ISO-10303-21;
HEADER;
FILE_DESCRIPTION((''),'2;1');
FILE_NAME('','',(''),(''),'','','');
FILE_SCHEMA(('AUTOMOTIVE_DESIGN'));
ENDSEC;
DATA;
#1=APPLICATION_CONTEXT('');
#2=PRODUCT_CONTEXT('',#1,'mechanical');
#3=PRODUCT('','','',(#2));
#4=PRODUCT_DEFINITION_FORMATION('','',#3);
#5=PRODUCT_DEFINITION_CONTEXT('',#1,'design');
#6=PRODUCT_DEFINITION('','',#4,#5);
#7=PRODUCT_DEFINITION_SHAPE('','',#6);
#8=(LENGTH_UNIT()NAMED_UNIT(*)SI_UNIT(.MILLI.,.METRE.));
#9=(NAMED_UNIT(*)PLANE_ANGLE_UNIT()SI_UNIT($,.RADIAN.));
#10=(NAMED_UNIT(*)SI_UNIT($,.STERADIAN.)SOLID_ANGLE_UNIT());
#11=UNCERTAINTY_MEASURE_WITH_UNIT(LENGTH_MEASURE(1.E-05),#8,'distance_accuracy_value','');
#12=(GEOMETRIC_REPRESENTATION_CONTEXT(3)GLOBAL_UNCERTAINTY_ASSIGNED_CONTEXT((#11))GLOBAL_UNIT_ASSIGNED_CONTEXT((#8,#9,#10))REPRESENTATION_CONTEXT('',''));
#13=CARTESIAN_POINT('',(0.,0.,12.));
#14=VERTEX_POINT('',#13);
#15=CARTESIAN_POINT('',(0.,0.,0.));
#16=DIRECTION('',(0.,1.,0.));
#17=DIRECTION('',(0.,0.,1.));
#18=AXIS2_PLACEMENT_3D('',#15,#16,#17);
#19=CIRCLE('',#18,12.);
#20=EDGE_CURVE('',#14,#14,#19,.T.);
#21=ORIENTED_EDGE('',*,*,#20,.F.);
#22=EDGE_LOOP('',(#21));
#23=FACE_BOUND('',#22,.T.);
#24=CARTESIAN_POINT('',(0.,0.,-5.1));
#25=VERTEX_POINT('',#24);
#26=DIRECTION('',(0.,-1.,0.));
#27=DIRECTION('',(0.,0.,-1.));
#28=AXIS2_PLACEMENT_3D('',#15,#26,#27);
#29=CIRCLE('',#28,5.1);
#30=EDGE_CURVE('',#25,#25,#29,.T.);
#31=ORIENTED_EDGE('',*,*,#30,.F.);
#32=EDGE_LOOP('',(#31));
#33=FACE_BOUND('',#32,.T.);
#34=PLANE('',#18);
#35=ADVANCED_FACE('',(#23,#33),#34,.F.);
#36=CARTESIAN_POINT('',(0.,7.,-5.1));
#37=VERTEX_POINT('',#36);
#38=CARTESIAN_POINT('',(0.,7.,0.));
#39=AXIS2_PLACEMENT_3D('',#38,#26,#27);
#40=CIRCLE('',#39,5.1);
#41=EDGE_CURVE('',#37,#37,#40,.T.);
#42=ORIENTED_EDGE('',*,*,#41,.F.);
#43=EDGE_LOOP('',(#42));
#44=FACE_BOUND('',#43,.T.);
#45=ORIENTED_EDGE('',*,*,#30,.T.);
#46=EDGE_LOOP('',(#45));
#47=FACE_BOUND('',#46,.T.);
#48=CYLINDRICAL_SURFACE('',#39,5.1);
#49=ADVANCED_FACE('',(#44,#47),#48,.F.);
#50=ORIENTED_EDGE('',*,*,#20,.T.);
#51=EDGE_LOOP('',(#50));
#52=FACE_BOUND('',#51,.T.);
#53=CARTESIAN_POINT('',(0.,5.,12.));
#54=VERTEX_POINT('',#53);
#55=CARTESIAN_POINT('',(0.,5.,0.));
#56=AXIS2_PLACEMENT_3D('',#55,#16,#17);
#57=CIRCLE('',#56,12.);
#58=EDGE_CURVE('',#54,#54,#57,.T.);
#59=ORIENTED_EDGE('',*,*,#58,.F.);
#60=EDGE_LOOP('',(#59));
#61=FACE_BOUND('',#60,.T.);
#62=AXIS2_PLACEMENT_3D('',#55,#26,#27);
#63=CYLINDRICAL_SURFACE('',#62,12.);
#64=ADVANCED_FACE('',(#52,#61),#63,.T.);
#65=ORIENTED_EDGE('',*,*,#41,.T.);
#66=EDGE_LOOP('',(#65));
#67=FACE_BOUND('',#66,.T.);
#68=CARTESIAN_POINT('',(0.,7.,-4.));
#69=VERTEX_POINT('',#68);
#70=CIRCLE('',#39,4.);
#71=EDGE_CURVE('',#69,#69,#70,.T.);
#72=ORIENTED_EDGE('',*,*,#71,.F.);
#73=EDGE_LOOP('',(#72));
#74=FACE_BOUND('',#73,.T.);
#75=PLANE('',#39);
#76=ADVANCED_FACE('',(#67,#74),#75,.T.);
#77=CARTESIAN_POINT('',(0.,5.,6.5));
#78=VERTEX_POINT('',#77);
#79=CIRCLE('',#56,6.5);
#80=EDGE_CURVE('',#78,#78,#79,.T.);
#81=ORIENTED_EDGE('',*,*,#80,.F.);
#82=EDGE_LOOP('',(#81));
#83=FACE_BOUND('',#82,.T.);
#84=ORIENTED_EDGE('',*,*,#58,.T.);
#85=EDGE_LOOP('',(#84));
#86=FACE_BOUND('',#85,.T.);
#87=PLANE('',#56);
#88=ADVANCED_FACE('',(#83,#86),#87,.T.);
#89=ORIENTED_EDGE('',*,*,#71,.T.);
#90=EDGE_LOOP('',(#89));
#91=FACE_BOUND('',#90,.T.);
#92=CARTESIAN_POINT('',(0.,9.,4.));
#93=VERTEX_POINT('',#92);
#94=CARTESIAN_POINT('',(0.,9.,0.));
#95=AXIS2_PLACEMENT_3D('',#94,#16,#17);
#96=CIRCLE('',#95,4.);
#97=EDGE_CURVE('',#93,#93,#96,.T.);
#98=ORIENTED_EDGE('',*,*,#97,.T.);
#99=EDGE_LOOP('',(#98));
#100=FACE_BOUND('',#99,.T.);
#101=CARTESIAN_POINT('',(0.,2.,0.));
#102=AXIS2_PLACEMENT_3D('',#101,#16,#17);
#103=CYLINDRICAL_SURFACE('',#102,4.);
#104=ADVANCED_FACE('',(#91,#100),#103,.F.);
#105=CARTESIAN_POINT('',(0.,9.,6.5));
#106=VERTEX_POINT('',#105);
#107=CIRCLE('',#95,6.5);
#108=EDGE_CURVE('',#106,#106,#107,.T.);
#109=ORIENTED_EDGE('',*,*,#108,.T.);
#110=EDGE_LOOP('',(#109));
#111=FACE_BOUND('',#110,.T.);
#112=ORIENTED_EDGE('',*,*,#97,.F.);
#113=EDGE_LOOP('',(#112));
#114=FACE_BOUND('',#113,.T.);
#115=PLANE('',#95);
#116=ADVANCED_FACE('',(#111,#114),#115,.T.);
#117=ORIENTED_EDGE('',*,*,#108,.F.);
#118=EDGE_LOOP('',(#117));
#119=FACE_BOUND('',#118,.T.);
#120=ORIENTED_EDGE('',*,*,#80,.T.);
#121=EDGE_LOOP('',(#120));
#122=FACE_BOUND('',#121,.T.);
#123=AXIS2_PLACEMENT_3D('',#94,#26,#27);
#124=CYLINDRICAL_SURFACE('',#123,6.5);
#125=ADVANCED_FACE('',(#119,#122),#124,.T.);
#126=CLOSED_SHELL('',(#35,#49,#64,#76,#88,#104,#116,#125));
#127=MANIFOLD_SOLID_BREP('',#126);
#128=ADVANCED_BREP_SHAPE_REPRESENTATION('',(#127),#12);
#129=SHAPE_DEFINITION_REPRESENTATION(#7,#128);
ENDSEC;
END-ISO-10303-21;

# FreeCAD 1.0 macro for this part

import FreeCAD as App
import Part
import Sketcher

V = App.Vector
Q = App.Units.Quantity

doc = App.newDocument("Part")
body = doc.addObject("PartDesign::Body", "Body")

# Sketch on XZ plane
sketch1 = body.newObject("Sketcher::SketchObject", "Sketch")
sketch1.AttachmentSupport = (doc.getObject("XZ_Plane"), [""])
sketch1.MapMode = "FlatFace"
sketch1.addGeometry(Part.Circle(V(0, 0, 0), V(0, 0, 1), 12), False)
sketch1.addConstraint([
    Sketcher.Constraint("Coincident", 0, 3, -1, 1),
    Sketcher.Constraint("Diameter", 0, Q("24 mm")),
])
pad1 = body.newObject("PartDesign::Pad", "Pad")
pad1.Profile = sketch1
pad1.Length = 5
pad1.Reversed = True

# Sketch on XZ plane
sketch2 = body.newObject("Sketcher::SketchObject", "Sketch001")
sketch2.AttachmentSupport = (doc.getObject("XZ_Plane"), [""])
sketch2.MapMode = "FlatFace"
sketch2.AttachmentOffset = App.Placement(V(0, 0, -5), App.Rotation())
sketch2.addGeometry(Part.Circle(V(0, 0, 0), V(0, 0, 1), 6), False)
sketch2.addConstraint([
    Sketcher.Constraint("Coincident", 0, 3, -1, 1),
    Sketcher.Constraint("Diameter", 0, Q("13 mm")),
])
pad2 = body.newObject("PartDesign::Pad", "Pad001")
pad2.Profile = sketch2
pad2.Length = 4
pad2.Reversed = True

# Sketch on XZ plane
sketch3 = body.newObject("Sketcher::SketchObject", "Sketch002")
sketch3.AttachmentSupport = (doc.getObject("XZ_Plane"), [""])
sketch3.MapMode = "FlatFace"
sketch3.addGeometry(Part.Circle(V(0, 0, 0), V(0, 0, 1), 5), False)
sketch3.addConstraint([
    Sketcher.Constraint("Coincident", 0, 3, -1, 1),
    Sketcher.Constraint("Diameter", 0, Q("10.2 mm")),
])
pocket1 = body.newObject("PartDesign::Pocket", "Pocket")
pocket1.Profile = sketch3
pocket1.Length = 7

# Sketch on XZ plane
sketch4 = body.newObject("Sketcher::SketchObject", "Sketch003")
sketch4.AttachmentSupport = (doc.getObject("XZ_Plane"), [""])
sketch4.MapMode = "FlatFace"
sketch4.AttachmentOffset = App.Placement(V(0, 0, -9), App.Rotation())
sketch4.addGeometry(Part.Circle(V(0, 0, 0), V(0, 0, 1), 4), False)
sketch4.addConstraint([
    Sketcher.Constraint("Coincident", 0, 3, -1, 1),
    Sketcher.Constraint("Diameter", 0, Q("8 mm")),
])
pocket2 = body.newObject("PartDesign::Pocket", "Pocket001")
pocket2.Profile = sketch4
pocket2.Length = 7
pocket2.Reversed = True

doc.recompute()
